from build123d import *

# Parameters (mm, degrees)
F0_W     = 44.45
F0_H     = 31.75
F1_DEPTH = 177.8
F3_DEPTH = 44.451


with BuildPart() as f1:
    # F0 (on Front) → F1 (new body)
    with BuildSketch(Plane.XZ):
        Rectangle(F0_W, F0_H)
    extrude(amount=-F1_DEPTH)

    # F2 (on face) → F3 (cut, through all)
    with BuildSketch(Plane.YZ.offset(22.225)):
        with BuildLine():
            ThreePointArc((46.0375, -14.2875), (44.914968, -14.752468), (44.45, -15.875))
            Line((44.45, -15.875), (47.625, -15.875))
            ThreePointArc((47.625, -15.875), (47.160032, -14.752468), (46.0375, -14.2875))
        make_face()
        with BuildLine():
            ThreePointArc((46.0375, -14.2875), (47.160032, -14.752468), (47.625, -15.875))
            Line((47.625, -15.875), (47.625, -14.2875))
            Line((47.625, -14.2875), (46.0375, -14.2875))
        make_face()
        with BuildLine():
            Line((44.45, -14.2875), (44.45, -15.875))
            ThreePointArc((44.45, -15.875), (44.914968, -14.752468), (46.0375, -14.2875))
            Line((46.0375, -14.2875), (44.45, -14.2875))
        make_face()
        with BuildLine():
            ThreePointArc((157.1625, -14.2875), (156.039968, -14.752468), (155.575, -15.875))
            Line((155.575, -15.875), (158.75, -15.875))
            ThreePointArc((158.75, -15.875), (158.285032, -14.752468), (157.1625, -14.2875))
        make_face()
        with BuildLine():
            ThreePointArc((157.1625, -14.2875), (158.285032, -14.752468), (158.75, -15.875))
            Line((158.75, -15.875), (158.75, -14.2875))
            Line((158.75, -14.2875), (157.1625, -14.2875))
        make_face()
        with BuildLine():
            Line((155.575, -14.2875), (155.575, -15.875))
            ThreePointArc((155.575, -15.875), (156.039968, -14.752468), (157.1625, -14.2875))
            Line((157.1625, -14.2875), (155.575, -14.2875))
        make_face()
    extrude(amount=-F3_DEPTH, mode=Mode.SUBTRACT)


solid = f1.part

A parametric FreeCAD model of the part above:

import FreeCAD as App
import Part
import Sketcher
from FreeCAD import Vector
Q = App.Units.Quantity


def add_polygon(sketch, points):
    """Adds a closed chain of lines whose ends are joined by coincident constraints."""
    first, n = sketch.GeometryCount, len(points)
    for a, b in zip(points, points[1:] + points[:1]):
        sketch.addGeometry(Part.LineSegment(App.Vector(*a, 0), App.Vector(*b, 0)), False)
    for i in range(n):
        sketch.addConstraint(Sketcher.Constraint("Coincident", first + i, 2, first + (i + 1) % n, 1))

doc = App.newDocument("Part")
params = doc.addObject("Spreadsheet::Sheet", "Params")
for row, (alias, value) in enumerate([
    ("sketch1_width", "1.75 in"),
    ("sketch1_height", "1.25 in"),
    ("pad1_length", "7 in"),
    ("sketch2_width", "0.125 in"),
    ("sketch2_height", "0.0625 in"),
], start=1):
    params.set(f"A{row}", alias)
    params.set(f"B{row}", "=" + value)
    params.setAlias(f"B{row}", alias)

body = doc.addObject("PartDesign::Body", "Body")

sketch1 = body.newObject("Sketcher::SketchObject", "Sketch")
sketch1.AttachmentSupport = (doc.getObject("XZ_Plane"), [""])
sketch1.MapMode = "FlatFace"
add_polygon(sketch1, [(-22, 16), (-22, -16), (22, -16), (22, 16)])
sketch1.addConstraint(Sketcher.Constraint("Vertical", 0))
sketch1.addConstraint(Sketcher.Constraint("Horizontal", 1))
sketch1.addConstraint(Sketcher.Constraint("Vertical", 2))
sketch1.addConstraint(Sketcher.Constraint("Horizontal", 3))
sketch1.addConstraint(Sketcher.Constraint("Symmetric", 0, 2, 2, 2, -1, 1))
sketch1.addConstraint(Sketcher.Constraint("DistanceX", 1, 1, 1, 2, Q("1.75 in")))
sketch1.addConstraint(Sketcher.Constraint("DistanceY", 0, 2, 0, 1, Q("1.25 in")))
sketch1.setExpression("Constraints[9]", "Params.sketch1_width")
sketch1.setExpression("Constraints[10]", "Params.sketch1_height")
pad1 = body.newObject("PartDesign::Pad", "Pad")
pad1.Profile = sketch1
pad1.setExpression("Length", "Params.pad1_length")
pad1.Reversed = True

sketch2 = body.newObject("Sketcher::SketchObject", "Sketch001")
sketch2.AttachmentSupport = (doc.getObject("YZ_Plane"), [""])
sketch2.MapMode = "FlatFace"
sketch2.AttachmentOffset = App.Placement(Vector(0, 0, 0.875 * 25.4), App.Rotation())
add_polygon(sketch2, [(44.5, -15.9), (47.6, -15.9), (47.6, -14.3), (44.5, -14.3)])
add_polygon(sketch2, [(155.6, -15.9), (158.8, -15.9), (158.8, -14.3), (155.6, -14.3)])
sketch2.addConstraint(Sketcher.Constraint("Horizontal", 0))
sketch2.addConstraint(Sketcher.Constraint("Vertical", 1))
sketch2.addConstraint(Sketcher.Constraint("Horizontal", 2))
sketch2.addConstraint(Sketcher.Constraint("Vertical", 3))
sketch2.addConstraint(Sketcher.Constraint("Horizontal", 4))
sketch2.addConstraint(Sketcher.Constraint("Vertical", 5))
sketch2.addConstraint(Sketcher.Constraint("Horizontal", 6))
sketch2.addConstraint(Sketcher.Constraint("Vertical", 7))
sketch2.addConstraint(Sketcher.Constraint("Horizontal", 3, 2, 4, 2))
sketch2.addConstraint(Sketcher.Constraint("Horizontal", 2, 2, 5, 2))
sketch2.addConstraint(Sketcher.Constraint("Equal", 2, 4))
sketch2.addConstraint(Sketcher.Constraint("DistanceX", 3, 2, 4, 2, Q("4.5 in")))
sketch2.addConstraint(Sketcher.Constraint("DistanceX", 0, 1, 0, 2, Q("0.125 in")))
sketch2.addConstraint(Sketcher.Constraint("DistanceY", 1, 1, 1, 2, Q("0.0625 in")))
sketch2.addConstraint(Sketcher.Constraint("DistanceX", -1, 1, 2, 2, Q("1.75 in")))
sketch2.addConstraint(Sketcher.Constraint("DistanceY", 0, 2, -1, 1, Q("0.625 in")))
sketch2.setExpression("Constraints[20]", "Params.sketch2_width")
sketch2.setExpression("Constraints[21]", "Params.sketch2_height")
pocket1 = body.newObject("PartDesign::Pocket", "Pocket")
pocket1.Profile = sketch2
pocket1.Type = "ThroughAll"

doc.recompute()
